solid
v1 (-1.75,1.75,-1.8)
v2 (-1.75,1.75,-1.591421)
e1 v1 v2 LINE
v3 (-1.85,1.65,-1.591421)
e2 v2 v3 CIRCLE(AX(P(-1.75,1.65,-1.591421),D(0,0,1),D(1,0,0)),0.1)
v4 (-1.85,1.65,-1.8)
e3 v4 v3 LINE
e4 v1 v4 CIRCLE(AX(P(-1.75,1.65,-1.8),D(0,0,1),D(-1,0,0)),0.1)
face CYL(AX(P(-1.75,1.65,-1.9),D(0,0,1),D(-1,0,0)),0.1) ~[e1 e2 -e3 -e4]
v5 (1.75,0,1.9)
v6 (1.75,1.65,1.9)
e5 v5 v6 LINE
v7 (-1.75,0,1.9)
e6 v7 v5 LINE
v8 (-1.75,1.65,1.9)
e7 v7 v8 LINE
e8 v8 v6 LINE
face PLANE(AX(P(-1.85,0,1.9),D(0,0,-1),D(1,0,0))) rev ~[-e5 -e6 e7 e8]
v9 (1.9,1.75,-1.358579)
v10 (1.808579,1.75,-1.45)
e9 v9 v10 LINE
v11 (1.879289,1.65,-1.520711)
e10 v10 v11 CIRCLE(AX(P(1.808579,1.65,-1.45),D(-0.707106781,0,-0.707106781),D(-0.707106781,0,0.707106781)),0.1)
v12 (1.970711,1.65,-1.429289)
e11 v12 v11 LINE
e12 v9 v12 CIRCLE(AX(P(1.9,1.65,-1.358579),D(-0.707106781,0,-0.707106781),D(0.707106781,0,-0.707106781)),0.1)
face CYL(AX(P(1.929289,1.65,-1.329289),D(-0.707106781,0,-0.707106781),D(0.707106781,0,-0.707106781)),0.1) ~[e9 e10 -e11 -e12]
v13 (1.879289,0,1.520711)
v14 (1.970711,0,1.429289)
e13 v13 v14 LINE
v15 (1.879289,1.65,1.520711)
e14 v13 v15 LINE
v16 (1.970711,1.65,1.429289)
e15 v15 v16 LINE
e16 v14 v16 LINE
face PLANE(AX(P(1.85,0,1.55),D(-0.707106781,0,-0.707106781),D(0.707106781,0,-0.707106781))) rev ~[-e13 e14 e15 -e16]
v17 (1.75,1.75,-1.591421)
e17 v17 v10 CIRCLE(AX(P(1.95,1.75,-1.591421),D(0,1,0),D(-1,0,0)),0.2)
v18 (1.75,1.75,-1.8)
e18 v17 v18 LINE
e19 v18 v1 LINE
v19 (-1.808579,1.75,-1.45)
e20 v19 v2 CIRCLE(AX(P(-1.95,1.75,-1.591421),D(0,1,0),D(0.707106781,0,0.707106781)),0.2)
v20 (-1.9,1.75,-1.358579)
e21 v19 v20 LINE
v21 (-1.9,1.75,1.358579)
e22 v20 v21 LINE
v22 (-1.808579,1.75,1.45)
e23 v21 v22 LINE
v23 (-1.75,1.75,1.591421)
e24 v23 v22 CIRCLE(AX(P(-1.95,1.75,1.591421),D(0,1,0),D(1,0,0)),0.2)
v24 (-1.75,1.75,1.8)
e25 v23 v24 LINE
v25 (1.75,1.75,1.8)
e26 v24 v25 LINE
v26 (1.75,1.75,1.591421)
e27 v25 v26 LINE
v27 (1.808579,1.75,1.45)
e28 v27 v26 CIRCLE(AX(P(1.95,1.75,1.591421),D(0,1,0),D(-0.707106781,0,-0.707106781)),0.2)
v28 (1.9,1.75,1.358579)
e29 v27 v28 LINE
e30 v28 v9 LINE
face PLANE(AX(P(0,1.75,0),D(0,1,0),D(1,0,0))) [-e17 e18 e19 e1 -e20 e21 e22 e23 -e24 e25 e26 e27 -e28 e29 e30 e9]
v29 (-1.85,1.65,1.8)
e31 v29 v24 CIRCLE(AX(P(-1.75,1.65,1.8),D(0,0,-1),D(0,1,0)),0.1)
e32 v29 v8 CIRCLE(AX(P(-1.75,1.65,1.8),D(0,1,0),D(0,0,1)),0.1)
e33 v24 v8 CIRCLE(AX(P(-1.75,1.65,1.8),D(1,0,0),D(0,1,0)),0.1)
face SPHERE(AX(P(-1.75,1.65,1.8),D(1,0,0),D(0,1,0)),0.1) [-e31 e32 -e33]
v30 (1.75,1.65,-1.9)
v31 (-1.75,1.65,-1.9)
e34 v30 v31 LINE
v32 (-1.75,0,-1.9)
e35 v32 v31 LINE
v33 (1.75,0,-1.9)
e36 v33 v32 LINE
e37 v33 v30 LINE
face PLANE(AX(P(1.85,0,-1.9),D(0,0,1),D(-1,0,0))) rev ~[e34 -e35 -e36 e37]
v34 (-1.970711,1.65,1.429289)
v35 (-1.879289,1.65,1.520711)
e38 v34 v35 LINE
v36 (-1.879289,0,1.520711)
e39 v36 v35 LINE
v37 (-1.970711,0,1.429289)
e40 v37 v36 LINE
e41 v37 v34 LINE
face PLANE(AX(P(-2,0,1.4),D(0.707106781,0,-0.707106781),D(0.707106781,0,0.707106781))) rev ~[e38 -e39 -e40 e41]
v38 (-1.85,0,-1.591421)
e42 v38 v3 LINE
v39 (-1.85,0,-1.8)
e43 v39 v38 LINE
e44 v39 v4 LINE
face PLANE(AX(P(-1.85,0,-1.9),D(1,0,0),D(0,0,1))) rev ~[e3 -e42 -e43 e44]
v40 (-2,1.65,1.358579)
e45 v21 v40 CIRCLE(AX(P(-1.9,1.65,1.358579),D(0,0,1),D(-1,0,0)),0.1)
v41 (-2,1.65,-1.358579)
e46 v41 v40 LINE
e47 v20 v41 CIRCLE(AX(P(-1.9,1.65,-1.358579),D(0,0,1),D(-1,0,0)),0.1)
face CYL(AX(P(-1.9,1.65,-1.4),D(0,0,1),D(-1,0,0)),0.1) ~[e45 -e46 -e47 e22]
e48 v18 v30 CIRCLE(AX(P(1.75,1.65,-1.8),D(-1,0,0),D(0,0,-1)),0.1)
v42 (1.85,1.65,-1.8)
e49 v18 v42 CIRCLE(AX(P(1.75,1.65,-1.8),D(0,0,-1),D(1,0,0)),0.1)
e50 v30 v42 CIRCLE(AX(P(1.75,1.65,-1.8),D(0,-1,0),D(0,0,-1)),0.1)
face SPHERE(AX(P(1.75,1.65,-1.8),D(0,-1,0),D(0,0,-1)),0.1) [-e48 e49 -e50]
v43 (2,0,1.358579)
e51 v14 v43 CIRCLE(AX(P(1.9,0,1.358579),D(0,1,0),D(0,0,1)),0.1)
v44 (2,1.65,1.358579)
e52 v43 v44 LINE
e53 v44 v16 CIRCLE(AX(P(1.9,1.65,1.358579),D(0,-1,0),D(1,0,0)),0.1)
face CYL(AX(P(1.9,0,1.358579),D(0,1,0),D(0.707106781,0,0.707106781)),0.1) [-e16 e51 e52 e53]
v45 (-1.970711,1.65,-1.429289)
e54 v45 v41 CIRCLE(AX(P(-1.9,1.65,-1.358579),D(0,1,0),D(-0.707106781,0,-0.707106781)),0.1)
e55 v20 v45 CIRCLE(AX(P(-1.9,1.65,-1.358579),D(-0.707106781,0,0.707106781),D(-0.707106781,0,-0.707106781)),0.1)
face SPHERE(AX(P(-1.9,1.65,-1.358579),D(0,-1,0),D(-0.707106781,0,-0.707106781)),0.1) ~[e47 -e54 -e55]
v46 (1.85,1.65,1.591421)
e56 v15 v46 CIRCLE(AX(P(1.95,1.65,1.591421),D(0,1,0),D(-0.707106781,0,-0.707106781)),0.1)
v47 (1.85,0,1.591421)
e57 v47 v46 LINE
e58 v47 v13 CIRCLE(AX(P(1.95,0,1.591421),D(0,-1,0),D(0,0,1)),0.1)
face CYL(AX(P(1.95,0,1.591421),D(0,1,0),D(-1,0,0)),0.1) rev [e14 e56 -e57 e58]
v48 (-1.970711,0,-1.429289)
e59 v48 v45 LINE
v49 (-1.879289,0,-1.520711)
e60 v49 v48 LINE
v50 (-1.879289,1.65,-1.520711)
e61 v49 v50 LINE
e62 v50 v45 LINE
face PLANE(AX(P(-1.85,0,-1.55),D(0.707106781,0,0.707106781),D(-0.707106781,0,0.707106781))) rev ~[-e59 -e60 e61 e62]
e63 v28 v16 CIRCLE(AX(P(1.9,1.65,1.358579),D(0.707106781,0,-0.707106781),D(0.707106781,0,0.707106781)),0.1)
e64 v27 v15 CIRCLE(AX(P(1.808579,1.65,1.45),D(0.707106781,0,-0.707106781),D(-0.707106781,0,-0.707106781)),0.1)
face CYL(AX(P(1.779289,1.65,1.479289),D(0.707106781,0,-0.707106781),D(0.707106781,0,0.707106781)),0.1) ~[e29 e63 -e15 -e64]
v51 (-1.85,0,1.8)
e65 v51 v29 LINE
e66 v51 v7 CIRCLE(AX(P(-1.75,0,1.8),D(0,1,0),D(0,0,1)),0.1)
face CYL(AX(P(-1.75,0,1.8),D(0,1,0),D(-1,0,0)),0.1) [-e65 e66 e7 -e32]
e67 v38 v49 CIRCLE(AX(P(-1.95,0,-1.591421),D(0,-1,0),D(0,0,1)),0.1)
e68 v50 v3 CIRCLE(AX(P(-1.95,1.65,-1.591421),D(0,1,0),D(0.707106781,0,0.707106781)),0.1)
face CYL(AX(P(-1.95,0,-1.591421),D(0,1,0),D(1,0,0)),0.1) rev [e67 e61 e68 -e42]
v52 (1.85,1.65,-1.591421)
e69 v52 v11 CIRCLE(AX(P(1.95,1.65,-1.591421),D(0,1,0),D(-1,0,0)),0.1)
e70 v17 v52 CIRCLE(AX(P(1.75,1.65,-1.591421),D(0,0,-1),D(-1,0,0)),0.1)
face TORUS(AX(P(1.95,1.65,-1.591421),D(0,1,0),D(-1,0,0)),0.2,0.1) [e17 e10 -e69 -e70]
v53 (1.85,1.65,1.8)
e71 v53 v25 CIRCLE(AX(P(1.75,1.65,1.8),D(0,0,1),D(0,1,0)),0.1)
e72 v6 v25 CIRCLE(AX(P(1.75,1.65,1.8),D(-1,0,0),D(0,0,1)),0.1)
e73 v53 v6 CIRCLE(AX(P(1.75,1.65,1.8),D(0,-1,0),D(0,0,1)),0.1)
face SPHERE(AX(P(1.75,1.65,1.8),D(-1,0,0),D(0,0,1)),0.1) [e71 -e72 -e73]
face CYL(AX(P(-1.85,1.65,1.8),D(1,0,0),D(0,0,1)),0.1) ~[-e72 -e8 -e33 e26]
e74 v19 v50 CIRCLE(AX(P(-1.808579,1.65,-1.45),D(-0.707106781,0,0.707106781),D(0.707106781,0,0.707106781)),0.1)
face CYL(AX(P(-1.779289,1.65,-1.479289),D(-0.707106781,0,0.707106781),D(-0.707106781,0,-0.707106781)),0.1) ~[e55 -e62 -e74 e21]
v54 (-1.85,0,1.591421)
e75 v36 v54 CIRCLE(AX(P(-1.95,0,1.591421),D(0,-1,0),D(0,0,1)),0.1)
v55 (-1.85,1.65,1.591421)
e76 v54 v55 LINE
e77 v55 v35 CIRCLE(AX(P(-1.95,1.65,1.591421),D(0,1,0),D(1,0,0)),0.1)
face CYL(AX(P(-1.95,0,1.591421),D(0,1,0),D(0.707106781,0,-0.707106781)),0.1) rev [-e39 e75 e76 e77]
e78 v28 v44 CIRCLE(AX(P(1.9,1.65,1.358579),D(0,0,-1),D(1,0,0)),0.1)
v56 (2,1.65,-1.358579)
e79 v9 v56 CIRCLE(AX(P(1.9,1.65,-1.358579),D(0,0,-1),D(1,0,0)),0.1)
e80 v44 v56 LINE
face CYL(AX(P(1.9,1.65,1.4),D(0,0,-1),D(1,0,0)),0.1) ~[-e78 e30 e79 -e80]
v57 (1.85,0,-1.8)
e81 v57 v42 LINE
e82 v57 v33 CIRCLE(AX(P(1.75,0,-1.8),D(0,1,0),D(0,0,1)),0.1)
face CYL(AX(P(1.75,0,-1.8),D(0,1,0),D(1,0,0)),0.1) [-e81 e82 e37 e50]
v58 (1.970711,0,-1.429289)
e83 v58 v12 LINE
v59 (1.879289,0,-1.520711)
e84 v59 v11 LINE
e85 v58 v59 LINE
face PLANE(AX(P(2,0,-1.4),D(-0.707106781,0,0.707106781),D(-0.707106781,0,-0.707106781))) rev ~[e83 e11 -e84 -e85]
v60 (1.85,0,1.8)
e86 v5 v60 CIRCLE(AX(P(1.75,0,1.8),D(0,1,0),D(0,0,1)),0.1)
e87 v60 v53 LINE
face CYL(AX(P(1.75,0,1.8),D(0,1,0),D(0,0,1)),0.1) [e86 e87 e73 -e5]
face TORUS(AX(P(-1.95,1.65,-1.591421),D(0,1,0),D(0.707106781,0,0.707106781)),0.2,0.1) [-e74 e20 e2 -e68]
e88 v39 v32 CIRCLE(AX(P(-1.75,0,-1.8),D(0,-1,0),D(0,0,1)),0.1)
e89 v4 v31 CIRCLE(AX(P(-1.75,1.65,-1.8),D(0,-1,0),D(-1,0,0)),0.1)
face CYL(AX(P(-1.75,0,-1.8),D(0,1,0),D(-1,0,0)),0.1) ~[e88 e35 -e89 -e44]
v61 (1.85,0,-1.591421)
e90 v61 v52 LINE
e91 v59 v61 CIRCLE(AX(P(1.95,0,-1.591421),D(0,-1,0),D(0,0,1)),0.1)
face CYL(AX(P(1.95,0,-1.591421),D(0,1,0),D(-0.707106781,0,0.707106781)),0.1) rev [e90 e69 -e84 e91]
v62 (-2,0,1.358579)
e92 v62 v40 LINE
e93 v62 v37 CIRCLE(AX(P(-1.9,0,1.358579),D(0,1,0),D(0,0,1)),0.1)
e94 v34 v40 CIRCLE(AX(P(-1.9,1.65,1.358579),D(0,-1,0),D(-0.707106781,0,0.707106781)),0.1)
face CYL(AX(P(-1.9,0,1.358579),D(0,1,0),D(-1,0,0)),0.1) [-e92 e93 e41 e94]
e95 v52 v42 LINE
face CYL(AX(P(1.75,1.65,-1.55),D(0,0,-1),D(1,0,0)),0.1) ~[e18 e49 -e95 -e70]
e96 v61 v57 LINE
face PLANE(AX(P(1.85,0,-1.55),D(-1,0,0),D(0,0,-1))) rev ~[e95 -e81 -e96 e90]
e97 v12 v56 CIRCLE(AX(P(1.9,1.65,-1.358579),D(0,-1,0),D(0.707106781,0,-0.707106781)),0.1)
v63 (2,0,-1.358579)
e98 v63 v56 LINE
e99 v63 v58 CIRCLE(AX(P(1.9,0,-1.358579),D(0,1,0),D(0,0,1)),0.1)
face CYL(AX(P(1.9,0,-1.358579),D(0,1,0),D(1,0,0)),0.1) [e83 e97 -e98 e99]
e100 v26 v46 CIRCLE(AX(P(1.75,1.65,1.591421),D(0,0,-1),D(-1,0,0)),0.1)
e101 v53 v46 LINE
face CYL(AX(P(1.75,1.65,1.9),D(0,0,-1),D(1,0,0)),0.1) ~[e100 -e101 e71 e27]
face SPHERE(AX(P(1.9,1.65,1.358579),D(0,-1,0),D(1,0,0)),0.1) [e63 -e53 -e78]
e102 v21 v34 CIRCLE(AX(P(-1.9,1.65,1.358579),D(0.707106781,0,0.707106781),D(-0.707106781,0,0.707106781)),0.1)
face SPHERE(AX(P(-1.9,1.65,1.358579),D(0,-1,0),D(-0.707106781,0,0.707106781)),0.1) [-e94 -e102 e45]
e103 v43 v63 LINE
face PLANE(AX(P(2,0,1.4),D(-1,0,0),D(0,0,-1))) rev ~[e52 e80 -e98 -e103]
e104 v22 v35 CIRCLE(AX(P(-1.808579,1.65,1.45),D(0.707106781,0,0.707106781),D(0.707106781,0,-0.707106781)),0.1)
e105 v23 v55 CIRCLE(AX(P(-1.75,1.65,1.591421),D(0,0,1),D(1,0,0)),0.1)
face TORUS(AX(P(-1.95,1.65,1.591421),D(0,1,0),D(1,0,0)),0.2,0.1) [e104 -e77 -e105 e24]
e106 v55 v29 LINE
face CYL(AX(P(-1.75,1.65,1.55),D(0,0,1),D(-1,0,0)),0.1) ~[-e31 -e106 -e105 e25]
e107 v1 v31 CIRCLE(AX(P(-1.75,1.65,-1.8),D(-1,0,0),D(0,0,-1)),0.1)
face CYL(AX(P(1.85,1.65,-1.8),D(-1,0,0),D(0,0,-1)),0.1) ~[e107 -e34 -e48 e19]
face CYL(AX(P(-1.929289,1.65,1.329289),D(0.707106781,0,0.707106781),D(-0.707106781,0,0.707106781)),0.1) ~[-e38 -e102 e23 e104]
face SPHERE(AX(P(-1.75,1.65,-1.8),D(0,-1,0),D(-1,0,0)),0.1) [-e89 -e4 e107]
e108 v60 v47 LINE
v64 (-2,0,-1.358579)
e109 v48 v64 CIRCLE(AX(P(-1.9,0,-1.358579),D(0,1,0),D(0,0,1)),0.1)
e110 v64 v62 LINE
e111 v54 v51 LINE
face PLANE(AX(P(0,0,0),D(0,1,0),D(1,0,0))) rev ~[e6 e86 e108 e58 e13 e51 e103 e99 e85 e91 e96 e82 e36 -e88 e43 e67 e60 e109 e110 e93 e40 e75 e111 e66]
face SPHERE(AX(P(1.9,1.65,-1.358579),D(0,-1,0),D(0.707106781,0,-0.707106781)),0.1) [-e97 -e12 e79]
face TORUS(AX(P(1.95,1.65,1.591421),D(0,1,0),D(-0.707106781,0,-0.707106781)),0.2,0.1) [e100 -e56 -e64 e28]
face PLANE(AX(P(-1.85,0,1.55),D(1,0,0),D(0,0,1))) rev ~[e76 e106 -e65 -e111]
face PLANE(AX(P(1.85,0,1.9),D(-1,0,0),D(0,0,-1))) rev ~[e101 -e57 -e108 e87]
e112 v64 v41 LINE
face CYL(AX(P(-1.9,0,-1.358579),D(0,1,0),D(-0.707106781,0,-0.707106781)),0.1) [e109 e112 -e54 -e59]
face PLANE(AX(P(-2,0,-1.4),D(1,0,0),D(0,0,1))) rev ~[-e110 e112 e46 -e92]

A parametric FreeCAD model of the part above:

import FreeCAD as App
import Part
import Sketcher
Q = App.Units.Quantity


def edges_at(feature, points):
    """Names of the edges that pass closest to the given points."""
    edges = feature.Shape.Edges
    near = lambda p: min(range(len(edges)), key=lambda i: edges[i].distToShape(Part.Vertex(*p))[0])
    return sorted({f"Edge{near(p) + 1}" for p in points})


def add_polygon(sketch, points):
    """Adds a closed chain of lines whose ends are joined by coincident constraints."""
    first, n = sketch.GeometryCount, len(points)
    for a, b in zip(points, points[1:] + points[:1]):
        sketch.addGeometry(Part.LineSegment(App.Vector(*a, 0), App.Vector(*b, 0)), False)
    for i in range(n):
        sketch.addConstraint(Sketcher.Constraint("Coincident", first + i, 2, first + (i + 1) % n, 1))

doc = App.newDocument("Part")
params = doc.addObject("Spreadsheet::Sheet", "Params")
for row, (alias, value) in enumerate([
    ("sketch1_width", "3.7 mm"),
    ("sketch1_height", "2.8 mm"),
    ("sketch1_height2", "0.35 mm"),
    ("pad1_length", "1.75 mm"),
    ("fillet_radius", "0.1 mm"),
], start=1):
    params.set(f"A{row}", alias)
    params.set(f"B{row}", "=" + value)
    params.setAlias(f"B{row}", alias)

body = doc.addObject("PartDesign::Body", "Body")

sketch1 = body.newObject("Sketcher::SketchObject", "Sketch")
sketch1.AttachmentSupport = (doc.getObject("XZ_Plane"), [""])
sketch1.MapMode = "FlatFace"
add_polygon(sketch1, [(-1.85, -1.9), (-1.85, -1.55), (-2, -1.4), (-2, 1.4), (-1.85, 1.55), (-1.85, 1.9), (1.85, 1.9), (1.85, 1.55), (2, 1.4), (2, -1.4), (1.85, -1.55), (1.85, -1.9)])
sketch1.addConstraint(Sketcher.Constraint("Vertical", 0))
sketch1.addConstraint(Sketcher.Constraint("Vertical", 2))
sketch1.addConstraint(Sketcher.Constraint("Vertical", 4))
sketch1.addConstraint(Sketcher.Constraint("Horizontal", 5))
sketch1.addConstraint(Sketcher.Constraint("Vertical", 6))
sketch1.addConstraint(Sketcher.Constraint("Vertical", 8))
sketch1.addConstraint(Sketcher.Constraint("Vertical", 10))
sketch1.addConstraint(Sketcher.Constraint("Horizontal", 11))
sketch1.addConstraint(Sketcher.Constraint("Symmetric", 0, 2, 6, 2, -1, 1))
sketch1.addConstraint(Sketcher.Constraint("Symmetric", 1, 2, 7, 2, -1, 1))
sketch1.addConstraint(Sketcher.Constraint("Symmetric", 3, 2, 9, 2, -1, 1))
sketch1.addConstraint(Sketcher.Constraint("Symmetric", 3, 2, 6, 2, -2))
sketch1.addConstraint(Sketcher.Constraint("Perpendicular", 1, 3))
sketch1.addConstraint(Sketcher.Constraint("Perpendicular", 7, 9))
sketch1.addConstraint(Sketcher.Constraint("Horizontal", 2, 2, 7, 2))
sketch1.addConstraint(Sketcher.Constraint("Equal", 0, 4))
sketch1.addConstraint(Sketcher.Constraint("DistanceX", 5, 1, 5, 2, Q("3.7 mm")))
sketch1.addConstraint(Sketcher.Constraint("DistanceY", 2, 1, 2, 2, Q("2.8 mm")))
sketch1.addConstraint(Sketcher.Constraint("DistanceX", 1, 2, -1, 1, Q("2 mm")))
sketch1.addConstraint(Sketcher.Constraint("DistanceY", 0, 1, 0, 2, Q("0.35 mm")))
sketch1.setExpression("Constraints[28]", "Params.sketch1_width")
sketch1.setExpression("Constraints[29]", "Params.sketch1_height")
sketch1.setExpression("Constraints[31]", "Params.sketch1_height2")
pad1 = body.newObject("PartDesign::Pad", "Pad")
pad1.Profile = sketch1
pad1.setExpression("Length", "Params.pad1_length")
pad1.Reversed = True
doc.recompute()

fillet = body.newObject("PartDesign::Fillet", "Fillet")
fillet.Base = (pad1, edges_at(pad1, [
    (0, 1.75, 1.9),
    (-1.85, 1.75, 1.725),
    (-1.925, 1.75, 1.475),
    (-2, 1.75, 0),
    (2, 0.875, 1.4),
    (2, 0.875, -1.4),
    (1.85, 0.875, -1.55),
    (1.85, 0.875, -1.9),
    (-1.85, 0.875, -1.9),
    (-1.85, 0.875, -1.55),
    (-2, 0.875, -1.4),
    (-2, 0.875, 1.4),
    (-1.85, 0.875, 1.55),
    (-1.85, 0.875, 1.9),
    (1.85, 0.875, 1.9),
    (1.85, 0.875, 1.55),
    (-1.925, 1.75, -1.475),
    (-1.85, 1.75, -1.725),
    (0, 1.75, -1.9),
    (1.85, 1.75, -1.725),
    (1.925, 1.75, -1.475),
    (2, 1.75, 0),
    (1.925, 1.75, 1.475),
    (1.85, 1.75, 1.725),
]))
fillet.setExpression("Radius", "Params.fillet_radius")

doc.recompute()
